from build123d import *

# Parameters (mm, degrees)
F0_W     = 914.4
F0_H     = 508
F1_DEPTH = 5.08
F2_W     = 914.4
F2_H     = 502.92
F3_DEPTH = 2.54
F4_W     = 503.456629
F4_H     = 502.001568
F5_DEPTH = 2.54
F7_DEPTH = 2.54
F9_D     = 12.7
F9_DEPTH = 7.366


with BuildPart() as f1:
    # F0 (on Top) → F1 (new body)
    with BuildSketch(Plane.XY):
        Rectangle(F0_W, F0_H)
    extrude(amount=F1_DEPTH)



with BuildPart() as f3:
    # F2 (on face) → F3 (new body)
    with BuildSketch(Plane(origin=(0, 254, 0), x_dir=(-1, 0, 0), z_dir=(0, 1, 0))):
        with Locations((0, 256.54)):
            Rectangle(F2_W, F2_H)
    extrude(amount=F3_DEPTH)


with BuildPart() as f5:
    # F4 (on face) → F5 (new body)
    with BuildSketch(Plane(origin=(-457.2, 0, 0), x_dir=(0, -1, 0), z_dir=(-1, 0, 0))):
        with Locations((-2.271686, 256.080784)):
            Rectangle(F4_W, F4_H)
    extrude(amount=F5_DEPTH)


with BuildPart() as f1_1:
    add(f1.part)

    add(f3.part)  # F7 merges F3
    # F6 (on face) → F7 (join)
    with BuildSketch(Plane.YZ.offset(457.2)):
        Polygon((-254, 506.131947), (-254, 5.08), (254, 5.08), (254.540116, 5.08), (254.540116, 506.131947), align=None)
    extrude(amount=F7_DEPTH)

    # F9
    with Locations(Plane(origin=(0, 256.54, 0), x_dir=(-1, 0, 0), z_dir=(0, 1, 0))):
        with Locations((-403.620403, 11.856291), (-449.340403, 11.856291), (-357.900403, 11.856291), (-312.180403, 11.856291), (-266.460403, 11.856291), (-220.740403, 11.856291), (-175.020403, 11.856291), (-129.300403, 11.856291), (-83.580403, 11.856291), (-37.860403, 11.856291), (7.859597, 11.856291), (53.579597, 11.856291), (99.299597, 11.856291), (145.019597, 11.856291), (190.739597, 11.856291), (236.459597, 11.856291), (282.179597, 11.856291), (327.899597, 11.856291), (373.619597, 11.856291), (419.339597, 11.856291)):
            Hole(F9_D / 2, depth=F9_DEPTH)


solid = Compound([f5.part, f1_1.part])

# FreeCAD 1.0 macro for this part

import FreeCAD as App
import Part
import Sketcher
Q = App.Units.Quantity


def add_polygon(sketch, points):
    """Adds a closed chain of lines whose ends are joined by coincident constraints."""
    first, n = sketch.GeometryCount, len(points)
    for a, b in zip(points, points[1:] + points[:1]):
        sketch.addGeometry(Part.LineSegment(App.Vector(*a, 0), App.Vector(*b, 0)), False)
    for i in range(n):
        sketch.addConstraint(Sketcher.Constraint("Coincident", first + i, 2, first + (i + 1) % n, 1))

doc = App.newDocument("Part")
params = doc.addObject("Spreadsheet::Sheet", "Params")
for row, (alias, value) in enumerate([
    ("sketch1_width", "36 in"),
    ("sketch1_height", "20 in"),
    ("pad1_length", "0.2 in"),
    ("sketch2_width", "36 in"),
    ("sketch2_height", "19.8 in"),
    ("pad2_length", "0.1 in"),
    ("pad3_length", "0.1 in"),
    ("pad4_length", "0.1 in"),
    ("sketch5_diameter", "0.5 in"),
    ("hole_diameter", "0.5 in"),
    ("hole_depth", "0.29 in"),
], start=1):
    params.set(f"A{row}", alias)
    params.set(f"B{row}", "=" + value)
    params.setAlias(f"B{row}", alias)

body = doc.addObject("PartDesign::Body", "Body")

sketch1 = body.newObject("Sketcher::SketchObject", "Sketch")
sketch1.AttachmentSupport = (doc.getObject("XY_Plane"), [""])
sketch1.MapMode = "FlatFace"
add_polygon(sketch1, [(-457.2, 254), (-457.2, -254), (457.2, -254), (457.2, 254)])
sketch1.addConstraint(Sketcher.Constraint("Vertical", 0))
sketch1.addConstraint(Sketcher.Constraint("Horizontal", 1))
sketch1.addConstraint(Sketcher.Constraint("Vertical", 2))
sketch1.addConstraint(Sketcher.Constraint("Horizontal", 3))
sketch1.addConstraint(Sketcher.Constraint("Symmetric", 0, 2, 2, 2, -1, 1))
sketch1.addConstraint(Sketcher.Constraint("DistanceX", 1, 1, 1, 2, Q("36 in")))
sketch1.addConstraint(Sketcher.Constraint("DistanceY", 0, 2, 0, 1, Q("20 in")))
sketch1.setExpression("Constraints[9]", "Params.sketch1_width")
sketch1.setExpression("Constraints[10]", "Params.sketch1_height")
pad1 = body.newObject("PartDesign::Pad", "Pad")
pad1.Profile = sketch1
pad1.setExpression("Length", "Params.pad1_length")
body2 = doc.addObject("PartDesign::Body", "Body001")

sketch2 = body2.newObject("Sketcher::SketchObject", "Sketch001")
sketch2.AttachmentSupport = (doc.getObject("XZ_Plane001"), [""])
sketch2.MapMode = "FlatFace"
sketch2.AttachmentOffset = App.Placement(App.Vector(0, 0, -10 * 25.4), App.Rotation())
add_polygon(sketch2, [(457.2, 508), (457.2, 5.08), (-457.2, 5.08), (-457.2, 508)])
sketch2.addConstraint(Sketcher.Constraint("Vertical", 0))
sketch2.addConstraint(Sketcher.Constraint("Horizontal", 1))
sketch2.addConstraint(Sketcher.Constraint("Vertical", 2))
sketch2.addConstraint(Sketcher.Constraint("Horizontal", 3))
sketch2.addConstraint(Sketcher.Constraint("DistanceX", 1, 2, 1, 1, Q("36 in")))
sketch2.addConstraint(Sketcher.Constraint("DistanceY", 0, 2, 0, 1, Q("19.8 in")))
sketch2.addConstraint(Sketcher.Constraint("DistanceX", -1, 1, 0, 2, Q("18 in")))
sketch2.addConstraint(Sketcher.Constraint("DistanceY", -1, 1, 2, 2, Q("20 in")))
sketch2.setExpression("Constraints[8]", "Params.sketch2_width")
sketch2.setExpression("Constraints[9]", "Params.sketch2_height")
pad2 = body2.newObject("PartDesign::Pad", "Pad001")
pad2.Profile = sketch2
pad2.setExpression("Length", "Params.pad2_length")
pad2.Reversed = True
body3 = doc.addObject("PartDesign::Body", "Body002")

sketch3 = body3.newObject("Sketcher::SketchObject", "Sketch002")
sketch3.AttachmentSupport = (doc.getObject("YZ_Plane002"), [""])
sketch3.MapMode = "FlatFace"
sketch3.AttachmentOffset = App.Placement(App.Vector(0, 0, -18 * 25.4), App.Rotation())
add_polygon(sketch3, [(254, 507.081568), (254, 5.08), (-249.456628, 5.08), (-249.456628, 507.081568)])
sketch3.addConstraint(Sketcher.Constraint("Vertical", 0))
sketch3.addConstraint(Sketcher.Constraint("Horizontal", 1))
sketch3.addConstraint(Sketcher.Constraint("Vertical", 2))
sketch3.addConstraint(Sketcher.Constraint("Horizontal", 3))
sketch3.addConstraint(Sketcher.Constraint("DistanceX", -1, 1, 0, 2, Q("10 in")))
sketch3.addConstraint(Sketcher.Constraint("DistanceY", -1, 1, 0, 2, Q("0.2 in")))
sketch3.addConstraint(Sketcher.Constraint("DistanceX", 1, 2, 1, 1, 503.456629))
sketch3.addConstraint(Sketcher.Constraint("DistanceY", 0, 2, 0, 1, 502.001568))
pad3 = body3.newObject("PartDesign::Pad", "Pad002")
pad3.Profile = sketch3
pad3.setExpression("Length", "Params.pad3_length")
pad3.Reversed = True
body.AllowCompound = True
doc.recompute()

boolean = body.newObject("PartDesign::Boolean", "Boolean")
boolean.Type = "Fuse"
boolean.addObjects([body2])

sketch4 = body.newObject("Sketcher::SketchObject", "Sketch003")
sketch4.AttachmentSupport = (doc.getObject("YZ_Plane"), [""])
sketch4.MapMode = "FlatFace"
sketch4.AttachmentOffset = App.Placement(App.Vector(0, 0, 18 * 25.4), App.Rotation())
add_polygon(sketch4, [(-254, 506.131947), (-254, 5.08), (254.540116, 5.08), (254.540116, 506.131947)])
sketch4.addConstraint(Sketcher.Constraint("Vertical", 0))
sketch4.addConstraint(Sketcher.Constraint("Horizontal", 1))
sketch4.addConstraint(Sketcher.Constraint("Vertical", 2))
sketch4.addConstraint(Sketcher.Constraint("Horizontal", 3))
sketch4.addConstraint(Sketcher.Constraint("DistanceX", 0, 2, -1, 1, Q("10 in")))
sketch4.addConstraint(Sketcher.Constraint("DistanceY", -1, 1, 0, 2, Q("0.2 in")))
sketch4.addConstraint(Sketcher.Constraint("DistanceX", 1, 1, 1, 2, 508.540116))
sketch4.addConstraint(Sketcher.Constraint("DistanceY", 0, 2, 0, 1, 501.051947))
pad4 = body.newObject("PartDesign::Pad", "Pad003")
pad4.Profile = sketch4
pad4.setExpression("Length", "Params.pad4_length")

sketch5 = body.newObject("Sketcher::SketchObject", "Sketch004")
sketch5.AttachmentSupport = (doc.getObject("XZ_Plane"), [""])
sketch5.MapMode = "FlatFace"
sketch5.AttachmentOffset = App.Placement(App.Vector(0, 0, -10.1 * 25.4), App.Rotation())
sketch5.addGeometry(Part.Circle(App.Vector(403.620403, 11.856291, 0), App.Vector(0, 0, 1), 6.35), False)
sketch5.addGeometry(Part.Circle(App.Vector(449.340403, 11.856291, 0), App.Vector(0, 0, 1), 6.35), False)
sketch5.addGeometry(Part.Circle(App.Vector(357.900403, 11.856291, 0), App.Vector(0, 0, 1), 6.35), False)
sketch5.addGeometry(Part.Circle(App.Vector(312.180403, 11.856291, 0), App.Vector(0, 0, 1), 6.35), False)
sketch5.addGeometry(Part.Circle(App.Vector(266.460403, 11.856291, 0), App.Vector(0, 0, 1), 6.35), False)
sketch5.addGeometry(Part.Circle(App.Vector(220.740403, 11.856291, 0), App.Vector(0, 0, 1), 6.35), False)
sketch5.addGeometry(Part.Circle(App.Vector(175.020403, 11.856291, 0), App.Vector(0, 0, 1), 6.35), False)
sketch5.addGeometry(Part.Circle(App.Vector(129.300403, 11.856291, 0), App.Vector(0, 0, 1), 6.35), False)
sketch5.addGeometry(Part.Circle(App.Vector(83.580403, 11.856291, 0), App.Vector(0, 0, 1), 6.35), False)
sketch5.addGeometry(Part.Circle(App.Vector(37.860403, 11.856291, 0), App.Vector(0, 0, 1), 6.35), False)
sketch5.addGeometry(Part.Circle(App.Vector(-7.859597, 11.856291, 0), App.Vector(0, 0, 1), 6.35), False)
sketch5.addGeometry(Part.Circle(App.Vector(-53.579597, 11.856291, 0), App.Vector(0, 0, 1), 6.35), False)
sketch5.addGeometry(Part.Circle(App.Vector(-99.299597, 11.856291, 0), App.Vector(0, 0, 1), 6.35), False)
sketch5.addGeometry(Part.Circle(App.Vector(-145.019597, 11.856291, 0), App.Vector(0, 0, 1), 6.35), False)
sketch5.addGeometry(Part.Circle(App.Vector(-190.739597, 11.856291, 0), App.Vector(0, 0, 1), 6.35), False)
sketch5.addGeometry(Part.Circle(App.Vector(-236.459597, 11.856291, 0), App.Vector(0, 0, 1), 6.35), False)
sketch5.addGeometry(Part.Circle(App.Vector(-282.179597, 11.856291, 0), App.Vector(0, 0, 1), 6.35), False)
sketch5.addGeometry(Part.Circle(App.Vector(-327.899597, 11.856291, 0), App.Vector(0, 0, 1), 6.35), False)
sketch5.addGeometry(Part.Circle(App.Vector(-373.619597, 11.856291, 0), App.Vector(0, 0, 1), 6.35), False)
sketch5.addGeometry(Part.Circle(App.Vector(-419.339597, 11.856291, 0), App.Vector(0, 0, 1), 6.35), False)
sketch5.addConstraint(Sketcher.Constraint("Equal", 0, 1))
sketch5.addConstraint(Sketcher.Constraint("Equal", 1, 2))
sketch5.addConstraint(Sketcher.Constraint("Equal", 2, 3))
sketch5.addConstraint(Sketcher.Constraint("Equal", 3, 4))
sketch5.addConstraint(Sketcher.Constraint("Equal", 4, 5))
sketch5.addConstraint(Sketcher.Constraint("Equal", 5, 6))
sketch5.addConstraint(Sketcher.Constraint("Equal", 6, 7))
sketch5.addConstraint(Sketcher.Constraint("Equal", 7, 8))
sketch5.addConstraint(Sketcher.Constraint("Equal", 8, 9))
sketch5.addConstraint(Sketcher.Constraint("Equal", 9, 10))
sketch5.addConstraint(Sketcher.Constraint("Equal", 10, 11))
sketch5.addConstraint(Sketcher.Constraint("Equal", 11, 12))
sketch5.addConstraint(Sketcher.Constraint("Equal", 12, 13))
sketch5.addConstraint(Sketcher.Constraint("Equal", 13, 14))
sketch5.addConstraint(Sketcher.Constraint("Equal", 14, 15))
sketch5.addConstraint(Sketcher.Constraint("Equal", 15, 16))
sketch5.addConstraint(Sketcher.Constraint("Equal", 16, 17))
sketch5.addConstraint(Sketcher.Constraint("Equal", 17, 18))
sketch5.addConstraint(Sketcher.Constraint("Equal", 18, 19))
sketch5.addConstraint(Sketcher.Constraint("Horizontal", 0, 3, 1, 3))
sketch5.addConstraint(Sketcher.Constraint("Horizontal", 1, 3, 2, 3))
sketch5.addConstraint(Sketcher.Constraint("Horizontal", 2, 3, 3, 3))
sketch5.addConstraint(Sketcher.Constraint("Horizontal", 3, 3, 4, 3))
sketch5.addConstraint(Sketcher.Constraint("Horizontal", 4, 3, 5, 3))
sketch5.addConstraint(Sketcher.Constraint("Horizontal", 5, 3, 6, 3))
sketch5.addConstraint(Sketcher.Constraint("Horizontal", 6, 3, 7, 3))
sketch5.addConstraint(Sketcher.Constraint("Horizontal", 7, 3, 8, 3))
sketch5.addConstraint(Sketcher.Constraint("Horizontal", 8, 3, 9, 3))
sketch5.addConstraint(Sketcher.Constraint("Horizontal", 9, 3, 10, 3))
sketch5.addConstraint(Sketcher.Constraint("Horizontal", 10, 3, 11, 3))
sketch5.addConstraint(Sketcher.Constraint("Horizontal", 11, 3, 12, 3))
sketch5.addConstraint(Sketcher.Constraint("Horizontal", 12, 3, 13, 3))
sketch5.addConstraint(Sketcher.Constraint("Horizontal", 13, 3, 14, 3))
sketch5.addConstraint(Sketcher.Constraint("Horizontal", 14, 3, 15, 3))
sketch5.addConstraint(Sketcher.Constraint("Horizontal", 15, 3, 16, 3))
sketch5.addConstraint(Sketcher.Constraint("Horizontal", 16, 3, 17, 3))
sketch5.addConstraint(Sketcher.Constraint("Horizontal", 17, 3, 18, 3))
sketch5.addConstraint(Sketcher.Constraint("Horizontal", 18, 3, 19, 3))
sketch5.addConstraint(Sketcher.Constraint("Diameter", 0, Q("0.5 in")))
sketch5.addConstraint(Sketcher.Constraint("DistanceX", 5, 3, 1, 3, Q("9 in")))
sketch5.addConstraint(Sketcher.Constraint("DistanceX", 6, 3, 0, 3, Q("9 in")))
sketch5.addConstraint(Sketcher.Constraint("DistanceX", 7, 3, 2, 3, Q("9 in")))
sketch5.addConstraint(Sketcher.Constraint("DistanceX", 8, 3, 3, 3, Q("9 in")))
sketch5.addConstraint(Sketcher.Constraint("DistanceX", 9, 3, 4, 3, Q("9 in")))
sketch5.addConstraint(Sketcher.Constraint("DistanceX", 10, 3, 5, 3, Q("9 in")))
sketch5.addConstraint(Sketcher.Constraint("DistanceX", 11, 3, 6, 3, Q("9 in")))
sketch5.addConstraint(Sketcher.Constraint("DistanceX", 12, 3, 7, 3, Q("9 in")))
sketch5.addConstraint(Sketcher.Constraint("DistanceX", 13, 3, 8, 3, Q("9 in")))
sketch5.addConstraint(Sketcher.Constraint("DistanceX", 14, 3, 9, 3, Q("9 in")))
sketch5.addConstraint(Sketcher.Constraint("DistanceX", 15, 3, 10, 3, Q("9 in")))
sketch5.addConstraint(Sketcher.Constraint("DistanceX", 16, 3, 11, 3, Q("9 in")))
sketch5.addConstraint(Sketcher.Constraint("DistanceX", 17, 3, 12, 3, Q("9 in")))
sketch5.addConstraint(Sketcher.Constraint("DistanceX", 18, 3, 13, 3, Q("9 in")))
sketch5.addConstraint(Sketcher.Constraint("DistanceX", 19, 3, 14, 3, Q("9 in")))
sketch5.addConstraint(Sketcher.Constraint("DistanceX", 0, 3, 1, 3, Q("1.8 in")))
sketch5.addConstraint(Sketcher.Constraint("DistanceX", 2, 3, 0, 3, Q("1.8 in")))
sketch5.addConstraint(Sketcher.Constraint("DistanceX", 3, 3, 2, 3, Q("1.8 in")))
sketch5.addConstraint(Sketcher.Constraint("DistanceX", 4, 3, 3, 3, Q("1.8 in")))
sketch5.addConstraint(Sketcher.Constraint("DistanceY", -1, 1, 0, 3, 11.856291))
sketch5.addConstraint(Sketcher.Constraint("DistanceX", -1, 1, 0, 3, 403.620403))
sketch5.setExpression("Constraints[38]", "Params.sketch5_diameter")
doc.recompute()
hole = body.newObject("PartDesign::Hole", "Hole")
hole.Profile = sketch5
hole.ThreadType = "None"
hole.setExpression("Diameter", "Params.hole_diameter")
hole.DepthType = "Dimension"
hole.setExpression("Depth", "Params.hole_depth")
hole.DrillPoint = "Flat"
hole.Reversed = True

doc.recompute()
